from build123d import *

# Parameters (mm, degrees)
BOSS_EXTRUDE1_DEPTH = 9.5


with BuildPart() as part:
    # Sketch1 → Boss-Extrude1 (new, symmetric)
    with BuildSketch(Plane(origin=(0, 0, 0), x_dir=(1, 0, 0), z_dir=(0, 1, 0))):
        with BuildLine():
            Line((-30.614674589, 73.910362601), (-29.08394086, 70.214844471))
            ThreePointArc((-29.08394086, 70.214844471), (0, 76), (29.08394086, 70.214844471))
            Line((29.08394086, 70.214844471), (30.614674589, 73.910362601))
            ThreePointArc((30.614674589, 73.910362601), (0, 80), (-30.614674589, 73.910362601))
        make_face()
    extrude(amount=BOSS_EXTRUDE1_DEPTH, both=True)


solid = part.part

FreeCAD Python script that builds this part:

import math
import FreeCAD as App
import Part
import Sketcher
Q = App.Units.Quantity

doc = App.newDocument("Part")
body = doc.addObject("PartDesign::Body", "Body")

# Sketch on XZ plane
sketch1 = body.newObject("Sketcher::SketchObject", "Sketch")
sketch1.AttachmentSupport = (doc.getObject("XZ_Plane"), [""])
sketch1.MapMode = "FlatFace"
sketch1.addGeometry(Part.LineSegment(App.Vector(-30.6, -73.9, 0), App.Vector(-29.1, -70.2, 0)), False)
sketch1.addGeometry(Part.ArcOfCircle(Part.Circle(App.Vector(0, 0, 0), App.Vector(0, 0, 1), 76), math.radians(-112), math.radians(-68)), False)
sketch1.addGeometry(Part.LineSegment(App.Vector(29.1, -70.2, 0), App.Vector(30.6, -73.9, 0)), False)
sketch1.addGeometry(Part.ArcOfCircle(Part.Circle(App.Vector(0, 0, 0), App.Vector(0, 0, 1), 80), math.radians(-112), math.radians(-68)), False)
sketch1.addConstraint(Sketcher.Constraint("Coincident", 0, 2, 1, 1))
sketch1.addConstraint(Sketcher.Constraint("Coincident", 1, 2, 2, 1))
sketch1.addConstraint(Sketcher.Constraint("Coincident", 2, 2, 3, 2))
sketch1.addConstraint(Sketcher.Constraint("Coincident", 3, 1, 0, 1))
sketch1.addConstraint(Sketcher.Constraint("Coincident", 1, 3, -1, 1))
sketch1.addConstraint(Sketcher.Constraint("Coincident", 3, 3, -1, 1))
sketch1.addConstraint(Sketcher.Constraint("Horizontal", 0, 2, 1, 2))
sketch1.addConstraint(Sketcher.Constraint("Horizontal", 2, 2, 3, 1))
sketch1.addConstraint(Sketcher.Constraint("Radius", 1, 76.0))
sketch1.addConstraint(Sketcher.Constraint("Radius", 3, 80.0))
sketch1.addConstraint(Sketcher.Constraint("Angle", 0, Q("67.5 deg")))
sketch1.addConstraint(Sketcher.Constraint("DistanceX", 0, 2, -1, 1, 29.083941))
pad1 = body.newObject("PartDesign::Pad", "Pad")
pad1.Profile = sketch1
pad1.Length = 19
pad1.Midplane = True

doc.recompute()
